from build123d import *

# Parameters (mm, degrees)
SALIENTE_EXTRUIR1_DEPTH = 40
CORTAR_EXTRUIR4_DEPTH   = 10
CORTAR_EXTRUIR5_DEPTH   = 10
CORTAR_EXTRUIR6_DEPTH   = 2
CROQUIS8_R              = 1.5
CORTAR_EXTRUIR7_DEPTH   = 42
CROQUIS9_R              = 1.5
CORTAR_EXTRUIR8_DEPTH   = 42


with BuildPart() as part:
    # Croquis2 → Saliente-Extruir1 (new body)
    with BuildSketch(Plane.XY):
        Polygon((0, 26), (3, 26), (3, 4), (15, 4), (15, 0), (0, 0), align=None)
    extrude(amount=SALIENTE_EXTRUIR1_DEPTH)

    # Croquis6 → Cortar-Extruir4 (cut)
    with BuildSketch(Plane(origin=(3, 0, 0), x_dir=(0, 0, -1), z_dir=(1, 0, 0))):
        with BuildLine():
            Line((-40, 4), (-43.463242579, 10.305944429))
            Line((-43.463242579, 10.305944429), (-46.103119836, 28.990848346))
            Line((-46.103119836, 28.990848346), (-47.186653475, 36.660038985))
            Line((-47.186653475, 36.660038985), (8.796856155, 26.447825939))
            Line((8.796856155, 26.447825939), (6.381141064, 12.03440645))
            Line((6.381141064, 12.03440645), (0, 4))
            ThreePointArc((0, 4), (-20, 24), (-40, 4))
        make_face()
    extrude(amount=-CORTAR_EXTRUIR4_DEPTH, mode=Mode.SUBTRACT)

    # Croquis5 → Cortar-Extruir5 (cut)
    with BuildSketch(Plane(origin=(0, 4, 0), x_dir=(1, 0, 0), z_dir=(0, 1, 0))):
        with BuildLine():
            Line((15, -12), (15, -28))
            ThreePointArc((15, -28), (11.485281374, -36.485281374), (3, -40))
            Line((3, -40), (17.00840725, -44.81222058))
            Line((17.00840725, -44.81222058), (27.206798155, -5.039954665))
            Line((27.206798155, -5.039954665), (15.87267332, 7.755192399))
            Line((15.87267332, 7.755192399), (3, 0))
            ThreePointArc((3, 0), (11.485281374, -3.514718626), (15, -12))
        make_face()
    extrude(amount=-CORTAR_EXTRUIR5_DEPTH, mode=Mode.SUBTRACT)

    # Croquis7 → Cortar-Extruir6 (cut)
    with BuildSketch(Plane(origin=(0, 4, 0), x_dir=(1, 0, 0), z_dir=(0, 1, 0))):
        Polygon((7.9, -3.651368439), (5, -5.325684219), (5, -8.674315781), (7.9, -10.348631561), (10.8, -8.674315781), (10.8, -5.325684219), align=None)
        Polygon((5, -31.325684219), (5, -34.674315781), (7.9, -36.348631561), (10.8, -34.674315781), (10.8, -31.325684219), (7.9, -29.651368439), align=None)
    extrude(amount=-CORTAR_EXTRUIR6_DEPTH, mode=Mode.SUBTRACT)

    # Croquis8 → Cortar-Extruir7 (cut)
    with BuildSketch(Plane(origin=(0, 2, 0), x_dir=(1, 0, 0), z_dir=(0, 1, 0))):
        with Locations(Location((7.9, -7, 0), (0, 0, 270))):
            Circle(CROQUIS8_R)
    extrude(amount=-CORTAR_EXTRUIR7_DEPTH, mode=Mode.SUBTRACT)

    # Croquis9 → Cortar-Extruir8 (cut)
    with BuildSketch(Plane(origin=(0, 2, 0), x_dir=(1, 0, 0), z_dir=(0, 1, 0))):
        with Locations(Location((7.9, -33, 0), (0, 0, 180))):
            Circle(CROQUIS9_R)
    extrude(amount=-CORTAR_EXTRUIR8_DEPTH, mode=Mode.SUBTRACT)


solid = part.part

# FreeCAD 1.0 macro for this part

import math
import FreeCAD as App
import Part
import Sketcher

V = App.Vector
Q = App.Units.Quantity


def add_polygon(sketch, points):
    """Adds a closed chain of lines whose ends are joined by coincident constraints."""
    first, n = sketch.GeometryCount, len(points)
    for a, b in zip(points, points[1:] + points[:1]):
        sketch.addGeometry(Part.LineSegment(App.Vector(*a, 0), App.Vector(*b, 0)), False)
    for i in range(n):
        sketch.addConstraint(Sketcher.Constraint("Coincident", first + i, 2, first + (i + 1) % n, 1))

doc = App.newDocument("Part")
body = doc.addObject("PartDesign::Body", "Body")

sketch1 = body.newObject("Sketcher::SketchObject", "Sketch")
sketch1.AttachmentSupport = (doc.getObject("XY_Plane"), [""])
sketch1.MapMode = "FlatFace"
add_polygon(sketch1, [(3, 26), (0, 26), (0, 0), (15, 0), (15, 4), (3, 4)])
sketch1.addConstraint(Sketcher.Constraint("Horizontal", 0))
sketch1.addConstraint(Sketcher.Constraint("Vertical", 1))
sketch1.addConstraint(Sketcher.Constraint("Horizontal", 2))
sketch1.addConstraint(Sketcher.Constraint("Vertical", 3))
sketch1.addConstraint(Sketcher.Constraint("Horizontal", 4))
sketch1.addConstraint(Sketcher.Constraint("Vertical", 5))
sketch1.addConstraint(Sketcher.Constraint("Coincident", 1, 2, -1, 1))
sketch1.addConstraint(Sketcher.Constraint("DistanceX", 0, 2, 0, 1, 3.0))
sketch1.addConstraint(Sketcher.Constraint("DistanceX", 2, 1, 2, 2, 15.0))
sketch1.addConstraint(Sketcher.Constraint("DistanceY", 1, 2, 1, 1, 26.0))
sketch1.addConstraint(Sketcher.Constraint("DistanceY", 3, 1, 3, 2, 4.0))
pad1 = body.newObject("PartDesign::Pad", "Pad")
pad1.Profile = sketch1
pad1.Length = 40

sketch2 = body.newObject("Sketcher::SketchObject", "Sketch001")
sketch2.AttachmentSupport = (doc.getObject("YZ_Plane"), [""])
sketch2.MapMode = "FlatFace"
sketch2.AttachmentOffset = App.Placement(V(0, 0, 3), App.Rotation())
sketch2.addGeometry(Part.LineSegment(V(10, 43, 0), V(4, 40, 0)), False)
sketch2.addGeometry(Part.ArcOfCircle(Part.Circle(V(4, 20, 0), V(0, 0, 1), 20), math.radians(-90), math.radians(90)), False)
sketch2.addGeometry(Part.LineSegment(V(4, 0, 0), V(12, -6, 0)), False)
sketch2.addGeometry(Part.LineSegment(V(12, -6, 0), V(26, -9, 0)), False)
sketch2.addGeometry(Part.LineSegment(V(26, -9, 0), V(37, 47, 0)), False)
sketch2.addGeometry(Part.LineSegment(V(37, 47, 0), V(29, 46, 0)), False)
sketch2.addGeometry(Part.LineSegment(V(29, 46, 0), V(10, 43, 0)), False)
sketch2.addConstraint(Sketcher.Constraint("Coincident", 0, 2, 1, 2))
sketch2.addConstraint(Sketcher.Constraint("Coincident", 1, 1, 2, 1))
sketch2.addConstraint(Sketcher.Constraint("Coincident", 2, 2, 3, 1))
sketch2.addConstraint(Sketcher.Constraint("Coincident", 3, 2, 4, 1))
sketch2.addConstraint(Sketcher.Constraint("Coincident", 4, 2, 5, 1))
sketch2.addConstraint(Sketcher.Constraint("Coincident", 5, 2, 6, 1))
sketch2.addConstraint(Sketcher.Constraint("Coincident", 6, 2, 0, 1))
sketch2.addConstraint(Sketcher.Constraint("PointOnObject", 1, 1, -1))
sketch2.addConstraint(Sketcher.Constraint("Parallel", 5, 6))
sketch2.addConstraint(Sketcher.Constraint("Vertical", 1, 3, 0, 2))
sketch2.addConstraint(Sketcher.Constraint("Vertical", 0, 2, 1, 1))
sketch2.addConstraint(Sketcher.Constraint("Radius", 1, 20.0))
sketch2.addConstraint(Sketcher.Constraint("DistanceX", -1, 1, 1, 3, 4.0))
sketch2.addConstraint(Sketcher.Constraint("Distance", 0, 7.194372))
sketch2.addConstraint(Sketcher.Constraint("Distance", 2, 10.260149))
sketch2.addConstraint(Sketcher.Constraint("Distance", 6, 18.870469))
sketch2.addConstraint(Sketcher.Constraint("DistanceY", 2, 2, -1, 1, 6.381141))
sketch2.addConstraint(Sketcher.Constraint("DistanceX", -1, 1, 4, 2, 36.660039))
sketch2.addConstraint(Sketcher.Constraint("DistanceX", -1, 1, 5, 2, 28.990848))
sketch2.addConstraint(Sketcher.Constraint("DistanceY", -1, 1, 5, 2, 46.10312))
sketch2.addConstraint(Sketcher.Constraint("DistanceX", 2, 2, 3, 2, 14.413419))
sketch2.addConstraint(Sketcher.Constraint("DistanceY", 3, 2, 4, 2, 55.98351))
pocket1 = body.newObject("PartDesign::Pocket", "Pocket")
pocket1.Profile = sketch2
pocket1.Length = 10

sketch3 = body.newObject("Sketcher::SketchObject", "Sketch002")
sketch3.AttachmentSupport = (doc.getObject("XZ_Plane"), [""])
sketch3.MapMode = "FlatFace"
sketch3.AttachmentOffset = App.Placement(V(0, 0, -4), App.Rotation())
sketch3.addGeometry(Part.LineSegment(V(15, 12, 0), V(15, 28, 0)), False)
sketch3.addGeometry(Part.ArcOfCircle(Part.Circle(V(3, 28, 0), V(0, 0, 1), 12), math.radians(0), math.radians(90)), False)
sketch3.addGeometry(Part.LineSegment(V(3, 40, 0), V(17, 45, 0)), False)
sketch3.addGeometry(Part.LineSegment(V(17, 45, 0), V(27, 5, 0)), False)
sketch3.addGeometry(Part.LineSegment(V(27, 5, 0), V(16, -8, 0)), False)
sketch3.addGeometry(Part.LineSegment(V(16, -8, 0), V(3, 0, 0)), False)
sketch3.addGeometry(Part.ArcOfCircle(Part.Circle(V(3, 12, 0), V(0, 0, 1), 12), math.radians(-90), math.radians(0)), False)
sketch3.addConstraint(Sketcher.Constraint("Tangent", 0, 2, 1, 1))
sketch3.addConstraint(Sketcher.Constraint("Coincident", 1, 2, 2, 1))
sketch3.addConstraint(Sketcher.Constraint("Coincident", 2, 2, 3, 1))
sketch3.addConstraint(Sketcher.Constraint("Coincident", 3, 2, 4, 1))
sketch3.addConstraint(Sketcher.Constraint("Coincident", 4, 2, 5, 1))
sketch3.addConstraint(Sketcher.Constraint("Coincident", 5, 2, 6, 1))
sketch3.addConstraint(Sketcher.Constraint("Tangent", 6, 2, 0, 1))
sketch3.addConstraint(Sketcher.Constraint("Vertical", 0))
sketch3.addConstraint(Sketcher.Constraint("Equal", 1, 6))
sketch3.addConstraint(Sketcher.Constraint("PointOnObject", 5, 2, -1))
sketch3.addConstraint(Sketcher.Constraint("Vertical", 6, 3, 1, 2))
sketch3.addConstraint(Sketcher.Constraint("Vertical", 1, 2, 5, 2))
sketch3.addConstraint(Sketcher.Constraint("Radius", 1, 12.0))
sketch3.addConstraint(Sketcher.Constraint("DistanceY", 0, 1, 0, 2, 16.0))
sketch3.addConstraint(Sketcher.Constraint("DistanceX", -1, 1, 1, 3, 3.0))
sketch3.addConstraint(Sketcher.Constraint("DistanceX", -1, 1, 3, 2, 27.206798))
sketch3.addConstraint(Sketcher.Constraint("Distance", 2, 14.811919))
sketch3.addConstraint(Sketcher.Constraint("Distance", 4, 17.09322))
sketch3.addConstraint(Sketcher.Constraint("DistanceY", -1, 1, 2, 2, 44.812221))
sketch3.addConstraint(Sketcher.Constraint("Distance", 3, 41.058986))
sketch3.addConstraint(Sketcher.Constraint("Distance", 5, 15.028264))
pocket2 = body.newObject("PartDesign::Pocket", "Pocket001")
pocket2.Profile = sketch3
pocket2.Length = 10
pocket2.Reversed = True

sketch4 = body.newObject("Sketcher::SketchObject", "Sketch003")
sketch4.AttachmentSupport = (doc.getObject("XZ_Plane"), [""])
sketch4.MapMode = "FlatFace"
sketch4.AttachmentOffset = App.Placement(V(0, 0, -4), App.Rotation())
add_polygon(sketch4, [(7.9, 3.7), (5, 5.3), (5, 8.7), (7.9, 10.3), (10.8, 8.7), (10.8, 5.3)])
add_polygon(sketch4, [(5, 31.3), (5, 34.7), (7.9, 36.3), (10.8, 34.7), (10.8, 31.3), (7.9, 29.7)])
sketch4.addConstraint(Sketcher.Constraint("Vertical", 1))
sketch4.addConstraint(Sketcher.Constraint("Vertical", 4))
sketch4.addConstraint(Sketcher.Constraint("Vertical", 6))
sketch4.addConstraint(Sketcher.Constraint("Vertical", 9))
sketch4.addConstraint(Sketcher.Constraint("Parallel", 0, 3))
sketch4.addConstraint(Sketcher.Constraint("Parallel", 2, 5))
sketch4.addConstraint(Sketcher.Constraint("Parallel", 5, 7))
sketch4.addConstraint(Sketcher.Constraint("Parallel", 3, 8))
sketch4.addConstraint(Sketcher.Constraint("Parallel", 7, 10))
sketch4.addConstraint(Sketcher.Constraint("Parallel", 8, 11))
sketch4.addConstraint(Sketcher.Constraint("Horizontal", 1, 2, 3, 2))
sketch4.addConstraint(Sketcher.Constraint("Horizontal", 0, 2, 4, 2))
sketch4.addConstraint(Sketcher.Constraint("Horizontal", 6, 2, 8, 2))
sketch4.addConstraint(Sketcher.Constraint("Horizontal", 9, 2, 11, 2))
sketch4.addConstraint(Sketcher.Constraint("Vertical", 2, 2, 5, 2))
sketch4.addConstraint(Sketcher.Constraint("Vertical", 1, 2, 6, 2))
sketch4.addConstraint(Sketcher.Constraint("Vertical", 5, 2, 7, 2))
sketch4.addConstraint(Sketcher.Constraint("Equal", 4, 6))
sketch4.addConstraint(Sketcher.Constraint("Angle", 0, Q("150 deg")))
sketch4.addConstraint(Sketcher.Constraint("DistanceX", -1, 1, 0, 2, 5.0))
sketch4.addConstraint(Sketcher.Constraint("DistanceY", 1, 2, 6, 2, 26.0))
sketch4.addConstraint(Sketcher.Constraint("DistanceX", -1, 1, 2, 2, 7.9))
sketch4.addConstraint(Sketcher.Constraint("DistanceY", 1, 1, 1, 2, 3.348632))
sketch4.addConstraint(Sketcher.Constraint("DistanceY", -1, 1, 2, 2, 10.348632))
pocket3 = body.newObject("PartDesign::Pocket", "Pocket002")
pocket3.Profile = sketch4
pocket3.Length = 2
pocket3.Reversed = True

sketch5 = body.newObject("Sketcher::SketchObject", "Sketch004")
sketch5.AttachmentSupport = (doc.getObject("XZ_Plane"), [""])
sketch5.MapMode = "FlatFace"
sketch5.AttachmentOffset = App.Placement(V(0, 0, -2), App.Rotation())
sketch5.addGeometry(Part.Circle(V(7.9, 7, 0), V(0, 0, 1), 1.5), False)
sketch5.addConstraint(Sketcher.Constraint("Diameter", 0, 3.0))
sketch5.addConstraint(Sketcher.Constraint("DistanceY", -1, 1, 0, 3, 7.0))
sketch5.addConstraint(Sketcher.Constraint("DistanceX", -1, 1, 0, 3, 7.9))
pocket4 = body.newObject("PartDesign::Pocket", "Pocket003")
pocket4.Profile = sketch5
pocket4.Length = 42
pocket4.Reversed = True

sketch6 = body.newObject("Sketcher::SketchObject", "Sketch005")
sketch6.AttachmentSupport = (doc.getObject("XZ_Plane"), [""])
sketch6.MapMode = "FlatFace"
sketch6.AttachmentOffset = App.Placement(V(0, 0, -2), App.Rotation())
sketch6.addGeometry(Part.Circle(V(7.9, 33, 0), V(0, 0, 1), 1.5), False)
sketch6.addConstraint(Sketcher.Constraint("Diameter", 0, 3.0))
sketch6.addConstraint(Sketcher.Constraint("DistanceY", -1, 1, 0, 3, 33.0))
sketch6.addConstraint(Sketcher.Constraint("DistanceX", -1, 1, 0, 3, 7.9))
pocket5 = body.newObject("PartDesign::Pocket", "Pocket004")
pocket5.Profile = sketch6
pocket5.Length = 42
pocket5.Reversed = True

doc.recompute()
